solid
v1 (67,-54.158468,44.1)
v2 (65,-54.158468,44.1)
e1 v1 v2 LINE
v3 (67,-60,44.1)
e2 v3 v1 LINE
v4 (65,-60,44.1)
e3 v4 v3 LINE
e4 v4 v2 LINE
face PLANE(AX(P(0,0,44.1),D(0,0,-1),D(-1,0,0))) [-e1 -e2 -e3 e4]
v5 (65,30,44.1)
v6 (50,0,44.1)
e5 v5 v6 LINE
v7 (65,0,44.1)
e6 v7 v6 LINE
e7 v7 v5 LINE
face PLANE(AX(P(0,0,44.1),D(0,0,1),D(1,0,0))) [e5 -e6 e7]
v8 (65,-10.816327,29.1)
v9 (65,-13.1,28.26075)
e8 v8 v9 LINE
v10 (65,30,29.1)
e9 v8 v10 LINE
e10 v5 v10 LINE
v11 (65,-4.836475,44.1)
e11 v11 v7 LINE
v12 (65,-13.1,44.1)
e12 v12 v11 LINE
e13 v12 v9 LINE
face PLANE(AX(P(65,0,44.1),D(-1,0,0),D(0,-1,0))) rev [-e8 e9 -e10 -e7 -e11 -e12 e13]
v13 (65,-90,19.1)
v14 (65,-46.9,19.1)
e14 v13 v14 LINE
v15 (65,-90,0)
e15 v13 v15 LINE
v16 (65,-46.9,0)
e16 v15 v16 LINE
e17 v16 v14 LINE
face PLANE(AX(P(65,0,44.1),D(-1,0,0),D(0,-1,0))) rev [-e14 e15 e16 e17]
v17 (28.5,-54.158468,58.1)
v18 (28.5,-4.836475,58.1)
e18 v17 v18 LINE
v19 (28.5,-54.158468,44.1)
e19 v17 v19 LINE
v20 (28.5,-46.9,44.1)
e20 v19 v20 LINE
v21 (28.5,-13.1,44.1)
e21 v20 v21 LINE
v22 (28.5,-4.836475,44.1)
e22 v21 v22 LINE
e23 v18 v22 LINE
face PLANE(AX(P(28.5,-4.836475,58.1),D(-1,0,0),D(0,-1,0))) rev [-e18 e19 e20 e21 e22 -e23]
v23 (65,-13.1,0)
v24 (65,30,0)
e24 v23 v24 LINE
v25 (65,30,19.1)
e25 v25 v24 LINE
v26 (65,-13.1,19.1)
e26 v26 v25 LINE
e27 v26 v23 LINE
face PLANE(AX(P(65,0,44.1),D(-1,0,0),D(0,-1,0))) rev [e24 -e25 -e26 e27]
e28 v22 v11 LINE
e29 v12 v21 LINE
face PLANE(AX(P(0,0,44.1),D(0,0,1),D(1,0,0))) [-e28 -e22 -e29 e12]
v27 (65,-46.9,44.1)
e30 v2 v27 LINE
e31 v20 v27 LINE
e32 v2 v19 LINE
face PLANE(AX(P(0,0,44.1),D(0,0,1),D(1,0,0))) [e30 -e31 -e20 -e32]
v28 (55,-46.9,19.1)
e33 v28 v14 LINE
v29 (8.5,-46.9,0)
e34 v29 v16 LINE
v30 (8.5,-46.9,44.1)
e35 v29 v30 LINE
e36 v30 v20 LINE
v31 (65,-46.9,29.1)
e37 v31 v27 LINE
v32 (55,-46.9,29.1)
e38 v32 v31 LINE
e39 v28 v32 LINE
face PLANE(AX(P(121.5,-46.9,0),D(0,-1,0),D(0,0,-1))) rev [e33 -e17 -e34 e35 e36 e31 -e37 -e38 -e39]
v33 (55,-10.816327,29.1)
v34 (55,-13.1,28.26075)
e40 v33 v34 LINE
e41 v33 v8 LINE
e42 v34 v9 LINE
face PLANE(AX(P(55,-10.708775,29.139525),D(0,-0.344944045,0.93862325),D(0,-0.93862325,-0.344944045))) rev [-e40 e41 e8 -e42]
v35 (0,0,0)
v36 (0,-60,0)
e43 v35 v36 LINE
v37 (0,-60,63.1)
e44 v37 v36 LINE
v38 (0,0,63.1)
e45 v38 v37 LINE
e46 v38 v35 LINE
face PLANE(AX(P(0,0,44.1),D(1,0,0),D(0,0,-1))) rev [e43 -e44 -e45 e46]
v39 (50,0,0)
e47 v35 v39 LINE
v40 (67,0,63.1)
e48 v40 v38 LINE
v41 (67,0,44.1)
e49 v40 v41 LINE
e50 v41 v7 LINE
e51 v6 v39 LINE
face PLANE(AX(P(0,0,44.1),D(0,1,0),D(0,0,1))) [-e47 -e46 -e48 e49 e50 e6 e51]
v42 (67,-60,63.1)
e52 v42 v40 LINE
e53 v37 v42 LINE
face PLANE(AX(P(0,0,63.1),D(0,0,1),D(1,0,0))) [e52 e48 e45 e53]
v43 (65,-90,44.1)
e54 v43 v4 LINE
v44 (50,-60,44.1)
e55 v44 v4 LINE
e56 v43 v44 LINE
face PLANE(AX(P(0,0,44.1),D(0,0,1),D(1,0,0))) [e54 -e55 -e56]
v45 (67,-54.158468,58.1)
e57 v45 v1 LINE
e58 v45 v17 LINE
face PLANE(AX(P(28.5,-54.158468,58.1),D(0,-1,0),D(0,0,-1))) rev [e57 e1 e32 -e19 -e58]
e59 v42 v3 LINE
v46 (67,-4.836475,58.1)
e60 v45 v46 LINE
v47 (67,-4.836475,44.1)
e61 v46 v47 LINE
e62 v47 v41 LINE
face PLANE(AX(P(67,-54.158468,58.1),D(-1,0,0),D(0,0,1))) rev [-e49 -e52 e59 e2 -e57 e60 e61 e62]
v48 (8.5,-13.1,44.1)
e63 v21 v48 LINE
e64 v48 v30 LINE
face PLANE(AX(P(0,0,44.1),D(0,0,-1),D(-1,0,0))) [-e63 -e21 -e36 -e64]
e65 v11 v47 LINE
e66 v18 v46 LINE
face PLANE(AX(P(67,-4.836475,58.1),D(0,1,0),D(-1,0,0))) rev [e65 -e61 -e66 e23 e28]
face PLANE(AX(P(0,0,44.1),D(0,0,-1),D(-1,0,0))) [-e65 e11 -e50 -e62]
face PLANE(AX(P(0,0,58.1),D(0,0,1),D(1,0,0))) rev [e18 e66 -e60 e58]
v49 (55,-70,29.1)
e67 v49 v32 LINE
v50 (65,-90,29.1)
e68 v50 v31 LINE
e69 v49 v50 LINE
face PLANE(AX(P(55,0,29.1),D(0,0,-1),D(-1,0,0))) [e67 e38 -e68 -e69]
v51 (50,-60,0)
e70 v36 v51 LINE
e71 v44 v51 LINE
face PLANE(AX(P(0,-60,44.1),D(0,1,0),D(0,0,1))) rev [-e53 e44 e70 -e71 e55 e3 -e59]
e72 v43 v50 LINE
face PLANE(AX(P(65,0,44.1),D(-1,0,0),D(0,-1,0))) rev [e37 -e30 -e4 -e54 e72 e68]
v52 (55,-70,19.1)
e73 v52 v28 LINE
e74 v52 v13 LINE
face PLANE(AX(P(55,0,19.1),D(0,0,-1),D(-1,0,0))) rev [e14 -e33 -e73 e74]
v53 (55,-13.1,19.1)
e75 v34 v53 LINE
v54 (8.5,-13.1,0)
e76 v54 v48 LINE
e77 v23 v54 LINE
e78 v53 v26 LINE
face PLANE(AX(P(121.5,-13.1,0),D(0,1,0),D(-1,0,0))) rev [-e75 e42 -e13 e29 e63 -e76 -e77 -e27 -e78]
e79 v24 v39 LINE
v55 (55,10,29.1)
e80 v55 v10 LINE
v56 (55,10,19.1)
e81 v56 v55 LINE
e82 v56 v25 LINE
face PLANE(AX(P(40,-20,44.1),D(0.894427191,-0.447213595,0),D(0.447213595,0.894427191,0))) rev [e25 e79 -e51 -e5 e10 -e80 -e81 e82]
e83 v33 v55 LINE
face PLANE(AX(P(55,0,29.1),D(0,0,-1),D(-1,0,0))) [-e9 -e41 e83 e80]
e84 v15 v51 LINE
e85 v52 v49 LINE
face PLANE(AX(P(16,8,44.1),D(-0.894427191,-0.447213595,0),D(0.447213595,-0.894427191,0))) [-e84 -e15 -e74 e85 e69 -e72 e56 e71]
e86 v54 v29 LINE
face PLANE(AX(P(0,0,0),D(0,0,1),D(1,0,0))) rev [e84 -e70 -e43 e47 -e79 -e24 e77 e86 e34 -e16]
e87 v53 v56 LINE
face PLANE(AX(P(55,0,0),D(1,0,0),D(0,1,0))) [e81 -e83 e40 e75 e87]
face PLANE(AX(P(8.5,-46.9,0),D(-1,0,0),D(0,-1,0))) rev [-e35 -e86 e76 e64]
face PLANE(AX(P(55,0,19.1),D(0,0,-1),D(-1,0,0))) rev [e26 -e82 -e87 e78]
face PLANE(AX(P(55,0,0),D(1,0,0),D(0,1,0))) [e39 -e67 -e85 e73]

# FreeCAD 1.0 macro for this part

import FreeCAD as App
import Part
import Sketcher

V = App.Vector
Q = App.Units.Quantity

doc = App.newDocument("Part")
params = doc.addObject("Spreadsheet::Sheet", "Params")
for row, (alias, value) in enumerate([
    ("sketch1_width", "50 mm"),
    ("sketch1_height", "60 mm"),
    ("sketch1_height2", "120 mm"),
    ("pad1_length", "44.1 mm"),
    ("sketch2_width", "113 mm"),
    ("sketch2_height", "33.8 mm"),
    ("sketch3_height", "10 mm"),
    ("sketch3_width", "76.9 mm"),
    ("sketch3_width2", "43.1 mm"),
    ("pocket2_length", "10 mm"),
    ("sketch4_width", "67 mm"),
    ("sketch4_height", "60 mm"),
    ("sketch4_width2", "38.5 mm"),
    ("pad2_length", "14 mm"),
    ("sketch5_width", "67 mm"),
    ("sketch5_height", "60 mm"),
    ("pad3_length", "5 mm"),
], start=1):
    params.set(f"A{row}", alias)
    params.set(f"B{row}", "=" + value)
    params.setAlias(f"B{row}", alias)

body = doc.addObject("PartDesign::Body", "Body")

# Sketch on XY plane
sketch1 = body.newObject("Sketcher::SketchObject", "Sketch")
sketch1.AttachmentSupport = (doc.getObject("XY_Plane"), [""])
sketch1.MapMode = "FlatFace"
sketch1.addGeometry(Part.LineSegment(V(0, 0, 0), V(0, -60, 0)), False)
sketch1.addGeometry(Part.LineSegment(V(0, -60, 0), V(50, -60, 0)), False)
sketch1.addGeometry(Part.LineSegment(V(50, -60, 0), V(65, -90, 0)), False)
sketch1.addGeometry(Part.LineSegment(V(65, -90, 0), V(65, 30, 0)), False)
sketch1.addGeometry(Part.LineSegment(V(65, 30, 0), V(50, 0, 0)), False)
sketch1.addGeometry(Part.LineSegment(V(50, 0, 0), V(0, 0, 0)), False)
sketch1.addConstraint(Sketcher.Constraint("Coincident", 0, 2, 1, 1))
sketch1.addConstraint(Sketcher.Constraint("Coincident", 1, 2, 2, 1))
sketch1.addConstraint(Sketcher.Constraint("Coincident", 2, 2, 3, 1))
sketch1.addConstraint(Sketcher.Constraint("Coincident", 3, 2, 4, 1))
sketch1.addConstraint(Sketcher.Constraint("Coincident", 4, 2, 5, 1))
sketch1.addConstraint(Sketcher.Constraint("Coincident", 5, 2, 0, 1))
sketch1.addConstraint(Sketcher.Constraint("Vertical", 0))
sketch1.addConstraint(Sketcher.Constraint("Horizontal", 1))
sketch1.addConstraint(Sketcher.Constraint("Vertical", 3))
sketch1.addConstraint(Sketcher.Constraint("Horizontal", 5))
sketch1.addConstraint(Sketcher.Constraint("Coincident", 5, 2, -1, 1))
sketch1.addConstraint(Sketcher.Constraint("Vertical", 1, 2, 4, 2))
sketch1.addConstraint(Sketcher.Constraint("Equal", 2, 4))
sketch1.addConstraint(Sketcher.Constraint("DistanceX", 1, 1, 1, 2, Q("50 mm")))
sketch1.addConstraint(Sketcher.Constraint("DistanceY", 0, 2, 0, 1, Q("60 mm")))
sketch1.addConstraint(Sketcher.Constraint("DistanceY", 3, 1, 3, 2, Q("120 mm")))
sketch1.addConstraint(Sketcher.Constraint("DistanceX", -1, 1, 2, 2, Q("65 mm")))
sketch1.setExpression("Constraints[13]", "Params.sketch1_width")
sketch1.setExpression("Constraints[14]", "Params.sketch1_height")
sketch1.setExpression("Constraints[15]", "Params.sketch1_height2")
pad1 = body.newObject("PartDesign::Pad", "Pad")
pad1.Profile = sketch1
pad1.setExpression("Length", "Params.pad1_length")

# Sketch on XY plane
sketch2 = body.newObject("Sketcher::SketchObject", "Sketch001")
sketch2.AttachmentSupport = (doc.getObject("XY_Plane"), [""])
sketch2.MapMode = "FlatFace"
sketch2.AttachmentOffset = App.Placement(V(0, 0, 44.1), App.Rotation())
sketch2.addGeometry(Part.LineSegment(V(8.5, -13.1, 0), V(8.5, -46.9, 0)), False)
sketch2.addGeometry(Part.LineSegment(V(8.5, -46.9, 0), V(121.5, -46.9, 0)), False)
sketch2.addGeometry(Part.LineSegment(V(121.5, -46.9, 0), V(121.5, -13.1, 0)), False)
sketch2.addGeometry(Part.LineSegment(V(121.5, -13.1, 0), V(8.5, -13.1, 0)), False)
sketch2.addConstraint(Sketcher.Constraint("Coincident", 0, 2, 1, 1))
sketch2.addConstraint(Sketcher.Constraint("Coincident", 1, 2, 2, 1))
sketch2.addConstraint(Sketcher.Constraint("Coincident", 2, 2, 3, 1))
sketch2.addConstraint(Sketcher.Constraint("Coincident", 3, 2, 0, 1))
sketch2.addConstraint(Sketcher.Constraint("Vertical", 0))
sketch2.addConstraint(Sketcher.Constraint("Horizontal", 1))
sketch2.addConstraint(Sketcher.Constraint("Vertical", 2))
sketch2.addConstraint(Sketcher.Constraint("Horizontal", 3))
sketch2.addConstraint(Sketcher.Constraint("DistanceX", 1, 1, 1, 2, Q("113 mm")))
sketch2.addConstraint(Sketcher.Constraint("DistanceY", 0, 2, 0, 1, Q("33.8 mm")))
sketch2.addConstraint(Sketcher.Constraint("DistanceX", -1, 1, 0, 2, Q("8.5 mm")))
sketch2.addConstraint(Sketcher.Constraint("DistanceY", 0, 2, -1, 1, Q("46.9 mm")))
sketch2.setExpression("Constraints[8]", "Params.sketch2_width")
sketch2.setExpression("Constraints[9]", "Params.sketch2_height")
pocket1 = body.newObject("PartDesign::Pocket", "Pocket")
pocket1.Profile = sketch2
pocket1.Type = "ThroughAll"

# Sketch on YZ plane
sketch3 = body.newObject("Sketcher::SketchObject", "Sketch002")
sketch3.AttachmentSupport = (doc.getObject("YZ_Plane"), [""])
sketch3.MapMode = "FlatFace"
sketch3.AttachmentOffset = App.Placement(V(0, 0, 65), App.Rotation())
sketch3.addGeometry(Part.LineSegment(V(-38.027211, 19.1, 0), V(-13.1, 28.26075, 0)), False)
sketch3.addGeometry(Part.LineSegment(V(-13.1, 28.26075, 0), V(-13.1, 29.1, 0)), False)
sketch3.addGeometry(Part.LineSegment(V(-13.1, 29.1, 0), V(-90, 29.1, 0)), False)
sketch3.addGeometry(Part.LineSegment(V(-90, 29.1, 0), V(-90, 19.1, 0)), False)
sketch3.addGeometry(Part.LineSegment(V(-90, 19.1, 0), V(-38.027211, 19.1, 0)), False)
sketch3.addGeometry(Part.LineSegment(V(30, 29.1, 0), V(-10.816327, 29.1, 0)), False)
sketch3.addGeometry(Part.LineSegment(V(-10.816327, 29.1, 0), V(-13.1, 28.26075, 0)), False)
sketch3.addGeometry(Part.LineSegment(V(-13.1, 28.26075, 0), V(-13.1, 19.1, 0)), False)
sketch3.addGeometry(Part.LineSegment(V(-13.1, 19.1, 0), V(30, 19.1, 0)), False)
sketch3.addGeometry(Part.LineSegment(V(30, 19.1, 0), V(30, 29.1, 0)), False)
sketch3.addConstraint(Sketcher.Constraint("Coincident", 0, 2, 1, 1))
sketch3.addConstraint(Sketcher.Constraint("Coincident", 1, 2, 2, 1))
sketch3.addConstraint(Sketcher.Constraint("Coincident", 2, 2, 3, 1))
sketch3.addConstraint(Sketcher.Constraint("Coincident", 3, 2, 4, 1))
sketch3.addConstraint(Sketcher.Constraint("Coincident", 4, 2, 0, 1))
sketch3.addConstraint(Sketcher.Constraint("Coincident", 5, 2, 6, 1))
sketch3.addConstraint(Sketcher.Constraint("Coincident", 6, 2, 7, 1))
sketch3.addConstraint(Sketcher.Constraint("Coincident", 7, 2, 8, 1))
sketch3.addConstraint(Sketcher.Constraint("Coincident", 8, 2, 9, 1))
sketch3.addConstraint(Sketcher.Constraint("Coincident", 9, 2, 5, 1))
sketch3.addConstraint(Sketcher.Constraint("Vertical", 1))
sketch3.addConstraint(Sketcher.Constraint("Horizontal", 2))
sketch3.addConstraint(Sketcher.Constraint("Vertical", 3))
sketch3.addConstraint(Sketcher.Constraint("Horizontal", 4))
sketch3.addConstraint(Sketcher.Constraint("Horizontal", 5))
sketch3.addConstraint(Sketcher.Constraint("Vertical", 7))
sketch3.addConstraint(Sketcher.Constraint("Horizontal", 8))
sketch3.addConstraint(Sketcher.Constraint("Vertical", 9))
sketch3.addConstraint(Sketcher.Constraint("Coincident", 6, 2, 0, 2))
sketch3.addConstraint(Sketcher.Constraint("Parallel", 0, 6))
sketch3.addConstraint(Sketcher.Constraint("Horizontal", 2, 2, 5, 2))
sketch3.addConstraint(Sketcher.Constraint("Horizontal", 4, 2, 7, 2))
sketch3.addConstraint(Sketcher.Constraint("DistanceY", 3, 2, 3, 1, Q("10 mm")))
sketch3.addConstraint(Sketcher.Constraint("DistanceX", 2, 2, 2, 1, Q("76.9 mm")))
sketch3.addConstraint(Sketcher.Constraint("DistanceX", 8, 1, 8, 2, Q("43.1 mm")))
sketch3.addConstraint(Sketcher.Constraint("DistanceX", 2, 2, -1, 1, Q("90 mm")))
sketch3.addConstraint(Sketcher.Constraint("DistanceY", -1, 1, 1, 2, Q("29.1 mm")))
sketch3.addConstraint(Sketcher.Constraint("DistanceX", 4, 1, 4, 2, Q("51.972789 mm")))
sketch3.addConstraint(Sketcher.Constraint("DistanceY", 1, 1, 1, 2, Q("0.83925 mm")))
sketch3.setExpression("Constraints[22]", "Params.sketch3_height")
sketch3.setExpression("Constraints[23]", "Params.sketch3_width")
sketch3.setExpression("Constraints[24]", "Params.sketch3_width2")
pocket2 = body.newObject("PartDesign::Pocket", "Pocket001")
pocket2.Profile = sketch3
pocket2.setExpression("Length", "Params.pocket2_length")

# Sketch on XY plane
sketch4 = body.newObject("Sketcher::SketchObject", "Sketch003")
sketch4.AttachmentSupport = (doc.getObject("XY_Plane"), [""])
sketch4.MapMode = "FlatFace"
sketch4.AttachmentOffset = App.Placement(V(0, 0, 44.1), App.Rotation())
sketch4.addGeometry(Part.LineSegment(V(0, 0, 0), V(0, -60, 0)), False)
sketch4.addGeometry(Part.LineSegment(V(0, -60, 0), V(67, -60, 0)), False)
sketch4.addGeometry(Part.LineSegment(V(67, -60, 0), V(67, -54.158468, 0)), False)
sketch4.addGeometry(Part.LineSegment(V(67, -54.158468, 0), V(28.5, -54.158468, 0)), False)
sketch4.addGeometry(Part.LineSegment(V(28.5, -54.158468, 0), V(28.5, -4.836475, 0)), False)
sketch4.addGeometry(Part.LineSegment(V(28.5, -4.836475, 0), V(67, -4.836475, 0)), False)
sketch4.addGeometry(Part.LineSegment(V(67, -4.836475, 0), V(67, 0, 0)), False)
sketch4.addGeometry(Part.LineSegment(V(67, 0, 0), V(0, 0, 0)), False)
sketch4.addConstraint(Sketcher.Constraint("Coincident", 0, 2, 1, 1))
sketch4.addConstraint(Sketcher.Constraint("Coincident", 1, 2, 2, 1))
sketch4.addConstraint(Sketcher.Constraint("Coincident", 2, 2, 3, 1))
sketch4.addConstraint(Sketcher.Constraint("Coincident", 3, 2, 4, 1))
sketch4.addConstraint(Sketcher.Constraint("Coincident", 4, 2, 5, 1))
sketch4.addConstraint(Sketcher.Constraint("Coincident", 5, 2, 6, 1))
sketch4.addConstraint(Sketcher.Constraint("Coincident", 6, 2, 7, 1))
sketch4.addConstraint(Sketcher.Constraint("Coincident", 7, 2, 0, 1))
sketch4.addConstraint(Sketcher.Constraint("Vertical", 0))
sketch4.addConstraint(Sketcher.Constraint("Horizontal", 1))
sketch4.addConstraint(Sketcher.Constraint("Vertical", 2))
sketch4.addConstraint(Sketcher.Constraint("Horizontal", 3))
sketch4.addConstraint(Sketcher.Constraint("Vertical", 4))
sketch4.addConstraint(Sketcher.Constraint("Horizontal", 5))
sketch4.addConstraint(Sketcher.Constraint("Vertical", 6))
sketch4.addConstraint(Sketcher.Constraint("Horizontal", 7))
sketch4.addConstraint(Sketcher.Constraint("Coincident", 7, 2, -1, 1))
sketch4.addConstraint(Sketcher.Constraint("Vertical", 2, 2, 5, 2))
sketch4.addConstraint(Sketcher.Constraint("DistanceX", 1, 1, 1, 2, Q("67 mm")))
sketch4.addConstraint(Sketcher.Constraint("DistanceY", 0, 2, 0, 1, Q("60 mm")))
sketch4.addConstraint(Sketcher.Constraint("DistanceX", 3, 2, 3, 1, Q("38.5 mm")))
sketch4.addConstraint(Sketcher.Constraint("DistanceY", 2, 1, 2, 2, Q("5.841532 mm")))
sketch4.addConstraint(Sketcher.Constraint("DistanceY", 4, 1, 4, 2, Q("49.321993 mm")))
sketch4.setExpression("Constraints[18]", "Params.sketch4_width")
sketch4.setExpression("Constraints[19]", "Params.sketch4_height")
sketch4.setExpression("Constraints[20]", "Params.sketch4_width2")
pad2 = body.newObject("PartDesign::Pad", "Pad001")
pad2.Profile = sketch4
pad2.setExpression("Length", "Params.pad2_length")

# Sketch on XY plane
sketch5 = body.newObject("Sketcher::SketchObject", "Sketch004")
sketch5.AttachmentSupport = (doc.getObject("XY_Plane"), [""])
sketch5.MapMode = "FlatFace"
sketch5.AttachmentOffset = App.Placement(V(0, 0, 58.1), App.Rotation())
sketch5.addGeometry(Part.LineSegment(V(0, 0, 0), V(0, -60, 0)), False)
sketch5.addGeometry(Part.LineSegment(V(0, -60, 0), V(67, -60, 0)), False)
sketch5.addGeometry(Part.LineSegment(V(67, -60, 0), V(67, 0, 0)), False)
sketch5.addGeometry(Part.LineSegment(V(67, 0, 0), V(0, 0, 0)), False)
sketch5.addConstraint(Sketcher.Constraint("Coincident", 0, 2, 1, 1))
sketch5.addConstraint(Sketcher.Constraint("Coincident", 1, 2, 2, 1))
sketch5.addConstraint(Sketcher.Constraint("Coincident", 2, 2, 3, 1))
sketch5.addConstraint(Sketcher.Constraint("Coincident", 3, 2, 0, 1))
sketch5.addConstraint(Sketcher.Constraint("Vertical", 0))
sketch5.addConstraint(Sketcher.Constraint("Horizontal", 1))
sketch5.addConstraint(Sketcher.Constraint("Vertical", 2))
sketch5.addConstraint(Sketcher.Constraint("Horizontal", 3))
sketch5.addConstraint(Sketcher.Constraint("Coincident", 3, 2, -1, 1))
sketch5.addConstraint(Sketcher.Constraint("DistanceX", 1, 1, 1, 2, Q("67 mm")))
sketch5.addConstraint(Sketcher.Constraint("DistanceY", 0, 2, 0, 1, Q("60 mm")))
sketch5.setExpression("Constraints[9]", "Params.sketch5_width")
sketch5.setExpression("Constraints[10]", "Params.sketch5_height")
pad3 = body.newObject("PartDesign::Pad", "Pad002")
pad3.Profile = sketch5
pad3.setExpression("Length", "Params.pad3_length")

doc.recompute()
